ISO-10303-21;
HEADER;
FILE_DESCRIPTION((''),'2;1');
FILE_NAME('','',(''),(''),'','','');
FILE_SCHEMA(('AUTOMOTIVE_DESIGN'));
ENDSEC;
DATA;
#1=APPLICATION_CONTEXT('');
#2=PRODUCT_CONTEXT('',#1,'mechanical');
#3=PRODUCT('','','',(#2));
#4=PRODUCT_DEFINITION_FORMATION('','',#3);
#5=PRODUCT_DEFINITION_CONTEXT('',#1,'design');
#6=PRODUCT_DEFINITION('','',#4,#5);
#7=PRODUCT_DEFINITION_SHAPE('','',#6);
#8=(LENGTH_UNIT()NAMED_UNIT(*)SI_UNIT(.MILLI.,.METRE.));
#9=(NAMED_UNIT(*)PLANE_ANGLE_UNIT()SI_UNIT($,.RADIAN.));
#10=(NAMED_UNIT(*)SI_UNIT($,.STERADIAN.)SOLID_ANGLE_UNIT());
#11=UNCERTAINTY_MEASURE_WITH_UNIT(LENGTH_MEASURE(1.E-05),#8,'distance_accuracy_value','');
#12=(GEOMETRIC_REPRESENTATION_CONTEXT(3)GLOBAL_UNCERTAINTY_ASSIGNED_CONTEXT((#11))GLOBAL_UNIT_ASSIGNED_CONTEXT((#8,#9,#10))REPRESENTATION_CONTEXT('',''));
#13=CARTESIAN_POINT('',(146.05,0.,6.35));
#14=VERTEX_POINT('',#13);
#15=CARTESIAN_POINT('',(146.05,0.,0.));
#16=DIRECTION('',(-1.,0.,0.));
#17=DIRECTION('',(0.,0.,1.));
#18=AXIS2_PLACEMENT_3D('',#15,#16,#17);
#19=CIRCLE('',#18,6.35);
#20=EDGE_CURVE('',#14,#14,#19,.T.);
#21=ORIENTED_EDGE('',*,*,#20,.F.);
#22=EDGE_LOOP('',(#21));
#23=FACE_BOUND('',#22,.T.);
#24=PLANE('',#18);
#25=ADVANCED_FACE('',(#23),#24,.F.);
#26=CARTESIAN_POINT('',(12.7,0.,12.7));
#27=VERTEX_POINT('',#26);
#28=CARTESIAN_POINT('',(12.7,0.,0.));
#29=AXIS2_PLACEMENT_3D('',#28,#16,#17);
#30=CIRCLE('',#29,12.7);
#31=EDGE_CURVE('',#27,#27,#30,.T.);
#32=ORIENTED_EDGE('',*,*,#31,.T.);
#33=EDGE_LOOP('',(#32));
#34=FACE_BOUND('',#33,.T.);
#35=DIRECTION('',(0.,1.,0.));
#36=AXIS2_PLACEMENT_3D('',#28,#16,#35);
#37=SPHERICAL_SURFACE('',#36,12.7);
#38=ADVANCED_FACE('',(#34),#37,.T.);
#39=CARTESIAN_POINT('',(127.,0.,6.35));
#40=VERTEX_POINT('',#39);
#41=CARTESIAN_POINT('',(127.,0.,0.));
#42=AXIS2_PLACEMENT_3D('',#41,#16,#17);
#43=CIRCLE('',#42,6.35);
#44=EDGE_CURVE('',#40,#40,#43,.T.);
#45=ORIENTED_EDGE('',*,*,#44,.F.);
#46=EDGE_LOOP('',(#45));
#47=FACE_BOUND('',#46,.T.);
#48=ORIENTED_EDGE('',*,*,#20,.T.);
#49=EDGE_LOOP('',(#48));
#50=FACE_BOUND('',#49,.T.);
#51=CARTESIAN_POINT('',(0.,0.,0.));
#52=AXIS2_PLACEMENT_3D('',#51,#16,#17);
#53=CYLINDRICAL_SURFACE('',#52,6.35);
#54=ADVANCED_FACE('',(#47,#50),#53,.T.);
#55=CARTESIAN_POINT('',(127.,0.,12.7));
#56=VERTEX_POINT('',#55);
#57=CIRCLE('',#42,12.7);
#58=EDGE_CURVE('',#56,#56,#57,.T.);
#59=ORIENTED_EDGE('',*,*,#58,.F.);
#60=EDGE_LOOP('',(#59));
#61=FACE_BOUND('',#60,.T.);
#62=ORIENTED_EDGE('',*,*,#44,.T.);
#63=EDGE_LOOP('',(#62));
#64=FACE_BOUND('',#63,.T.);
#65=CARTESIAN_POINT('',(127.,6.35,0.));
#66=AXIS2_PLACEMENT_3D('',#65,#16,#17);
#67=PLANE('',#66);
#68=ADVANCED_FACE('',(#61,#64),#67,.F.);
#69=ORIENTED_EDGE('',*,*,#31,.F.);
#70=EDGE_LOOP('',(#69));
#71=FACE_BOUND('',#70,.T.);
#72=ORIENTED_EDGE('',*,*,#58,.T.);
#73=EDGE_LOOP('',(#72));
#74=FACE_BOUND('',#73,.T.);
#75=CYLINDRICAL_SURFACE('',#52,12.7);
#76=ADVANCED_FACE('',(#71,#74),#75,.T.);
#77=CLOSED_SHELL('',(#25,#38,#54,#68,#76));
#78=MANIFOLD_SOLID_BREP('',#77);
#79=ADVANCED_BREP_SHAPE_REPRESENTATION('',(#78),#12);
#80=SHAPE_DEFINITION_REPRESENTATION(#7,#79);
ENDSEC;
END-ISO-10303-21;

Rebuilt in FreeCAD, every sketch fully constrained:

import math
import FreeCAD as App
import Part
import Sketcher

V = App.Vector
Q = App.Units.Quantity

doc = App.newDocument("Part")
body = doc.addObject("PartDesign::Body", "Body")

# Sketch on XY plane
sketch1 = doc.addObject("Sketcher::SketchObject", "Sketch")
body.addObject(sketch1)
sketch1.AttachmentSupport = (doc.XY_Plane, [""])
sketch1.MapMode = "FlatFace"
sketch1.addGeometry([
    Part.LineSegment(V(0, 0, 0), V(146, 0, 0)),  # 0
    Part.LineSegment(V(146, 0, 0), V(146, 6, 0)),  # 1
    Part.LineSegment(V(146, 6, 0), V(127, 6, 0)),  # 2
    Part.LineSegment(V(127, 6, 0), V(127, 13, 0)),  # 3
    Part.LineSegment(V(127, 13, 0), V(13, 13, 0)),  # 4
    Part.ArcOfCircle(Part.Circle(V(13, 0, 0), V(0, 0, 1), 13), math.radians(90), math.radians(180)),  # 5
], False)
sketch1.addConstraint([
    Sketcher.Constraint("Coincident", 0, 2, 1, 1),
    Sketcher.Constraint("Coincident", 1, 2, 2, 1),
    Sketcher.Constraint("Coincident", 2, 2, 3, 1),
    Sketcher.Constraint("Coincident", 3, 2, 4, 1),
    Sketcher.Constraint("Tangent", 4, 2, 5, 1),
    Sketcher.Constraint("Coincident", 5, 2, 0, 1),
    Sketcher.Constraint("Horizontal", 0),
    Sketcher.Constraint("Vertical", 1),
    Sketcher.Constraint("Horizontal", 2),
    Sketcher.Constraint("Vertical", 3),
    Sketcher.Constraint("Horizontal", 4),
    Sketcher.Constraint("Coincident", 5, 2, -1, 1),
    Sketcher.Constraint("PointOnObject", 5, 3, -1),
    Sketcher.Constraint("Equal", 1, 3),
    Sketcher.Constraint("Radius", 5, Q("0.5 in")),
    Sketcher.Constraint("DistanceX", 4, 2, 4, 1, Q("4.5 in")),
    Sketcher.Constraint("DistanceX", 0, 1, 0, 2, Q("5.75 in")),
])
revolution = doc.addObject("PartDesign::Revolution", "Revolution")
body.addObject(revolution)
revolution.Profile = sketch1
revolution.ReferenceAxis = (sketch1, ["H_Axis"])
revolution.Angle = 360

doc.recompute()
